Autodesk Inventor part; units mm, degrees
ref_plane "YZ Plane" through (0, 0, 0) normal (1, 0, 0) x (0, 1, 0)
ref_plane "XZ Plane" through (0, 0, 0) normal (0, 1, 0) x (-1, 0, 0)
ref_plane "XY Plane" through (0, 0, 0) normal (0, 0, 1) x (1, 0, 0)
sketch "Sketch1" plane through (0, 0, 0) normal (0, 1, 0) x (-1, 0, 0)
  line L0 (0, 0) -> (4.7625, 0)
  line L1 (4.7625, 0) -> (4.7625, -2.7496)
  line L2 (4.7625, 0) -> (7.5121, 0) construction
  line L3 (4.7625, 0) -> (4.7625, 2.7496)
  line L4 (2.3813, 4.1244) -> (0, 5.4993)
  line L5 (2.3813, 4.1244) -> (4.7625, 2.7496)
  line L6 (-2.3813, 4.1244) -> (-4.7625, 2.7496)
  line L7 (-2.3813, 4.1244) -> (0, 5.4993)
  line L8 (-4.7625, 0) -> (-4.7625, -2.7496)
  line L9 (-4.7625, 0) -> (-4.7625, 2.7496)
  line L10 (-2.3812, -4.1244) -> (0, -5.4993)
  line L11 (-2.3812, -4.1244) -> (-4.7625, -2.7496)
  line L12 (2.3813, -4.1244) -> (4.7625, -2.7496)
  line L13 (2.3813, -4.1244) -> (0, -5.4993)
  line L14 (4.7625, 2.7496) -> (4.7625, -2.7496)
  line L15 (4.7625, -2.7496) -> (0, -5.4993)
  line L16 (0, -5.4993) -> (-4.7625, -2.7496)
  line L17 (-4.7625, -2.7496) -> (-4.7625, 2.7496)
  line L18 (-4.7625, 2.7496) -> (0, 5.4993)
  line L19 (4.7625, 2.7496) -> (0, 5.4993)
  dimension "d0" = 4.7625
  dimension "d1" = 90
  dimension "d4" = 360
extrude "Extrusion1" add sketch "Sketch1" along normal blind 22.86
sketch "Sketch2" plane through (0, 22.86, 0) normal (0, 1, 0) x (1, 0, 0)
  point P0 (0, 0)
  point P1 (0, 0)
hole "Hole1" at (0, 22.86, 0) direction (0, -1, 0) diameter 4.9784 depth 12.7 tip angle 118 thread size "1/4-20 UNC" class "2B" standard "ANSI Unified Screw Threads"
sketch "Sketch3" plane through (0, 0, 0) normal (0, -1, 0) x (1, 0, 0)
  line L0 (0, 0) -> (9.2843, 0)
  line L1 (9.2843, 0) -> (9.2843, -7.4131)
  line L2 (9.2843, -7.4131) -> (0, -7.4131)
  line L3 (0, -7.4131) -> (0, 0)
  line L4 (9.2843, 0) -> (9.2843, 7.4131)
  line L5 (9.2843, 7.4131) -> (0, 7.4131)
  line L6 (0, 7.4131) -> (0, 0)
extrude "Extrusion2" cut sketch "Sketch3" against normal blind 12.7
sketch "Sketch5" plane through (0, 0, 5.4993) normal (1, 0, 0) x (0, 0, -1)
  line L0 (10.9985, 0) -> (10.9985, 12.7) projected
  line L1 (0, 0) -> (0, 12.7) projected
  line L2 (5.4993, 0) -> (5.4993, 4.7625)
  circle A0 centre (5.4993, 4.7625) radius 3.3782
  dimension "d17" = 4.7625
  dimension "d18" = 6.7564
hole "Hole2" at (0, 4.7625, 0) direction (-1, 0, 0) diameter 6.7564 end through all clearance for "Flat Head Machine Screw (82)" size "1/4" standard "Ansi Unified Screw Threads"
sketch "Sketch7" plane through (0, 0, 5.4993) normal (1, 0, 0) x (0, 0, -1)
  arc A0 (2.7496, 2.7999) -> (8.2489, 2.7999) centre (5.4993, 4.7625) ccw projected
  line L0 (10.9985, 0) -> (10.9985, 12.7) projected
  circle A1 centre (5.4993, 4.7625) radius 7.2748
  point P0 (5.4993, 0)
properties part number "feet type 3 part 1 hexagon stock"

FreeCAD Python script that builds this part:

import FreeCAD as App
import Part
import Sketcher
from FreeCAD import Vector
Q = App.Units.Quantity


def add_polygon(sketch, points):
    """Adds a closed chain of lines whose ends are joined by coincident constraints."""
    first, n = sketch.GeometryCount, len(points)
    for a, b in zip(points, points[1:] + points[:1]):
        sketch.addGeometry(Part.LineSegment(App.Vector(*a, 0), App.Vector(*b, 0)), False)
    for i in range(n):
        sketch.addConstraint(Sketcher.Constraint("Coincident", first + i, 2, first + (i + 1) % n, 1))

doc = App.newDocument("Part")
body = doc.addObject("PartDesign::Body", "Body")

# Sketch on XZ plane
sketch1 = body.newObject("Sketcher::SketchObject", "Sketch")
sketch1.AttachmentSupport = (doc.getObject("XZ_Plane"), [""])
sketch1.MapMode = "FlatFace"
add_polygon(sketch1, [(-4.8, -2.7), (-4.8, 2.7), (-2.4, 4.1), (0, 5.5), (2.4, 4.1), (4.8, 2.7), (4.8, -2.7), (2.4, -4.1), (0, -5.5), (-2.4, -4.1)])  # lines 0-9
sketch1.addConstraint([
    Sketcher.Constraint("Vertical", 0),
    Sketcher.Constraint("Vertical", 5),
    Sketcher.Constraint("Symmetric", 0, 2, 5, 2, -1, 1),
    Sketcher.Constraint("Symmetric", 1, 2, 6, 2, -1, 1),
    Sketcher.Constraint("Symmetric", 2, 2, 7, 2, -1, 1),
    Sketcher.Constraint("Symmetric", 3, 2, 8, 2, -1, 1),
    Sketcher.Constraint("Symmetric", 1, 2, 3, 2, -2),
    Sketcher.Constraint("PointOnObject", 2, 2, -2),
    Sketcher.Constraint("Parallel", 1, 2),
    Sketcher.Constraint("Parallel", 3, 4),
    Sketcher.Constraint("Parallel", 8, 9),
    Sketcher.Constraint("Equal", 1, 2),
    Sketcher.Constraint("DistanceX", 0, 2, -1, 1, Q("0.1875 in")),
    Sketcher.Constraint("Angle", 1, Q("30.0002 deg")),
    Sketcher.Constraint("DistanceY", 0, 1, 0, 2, Q("0.2165 in")),
])
pad1 = body.newObject("PartDesign::Pad", "Pad")
pad1.Profile = sketch1
pad1.Length = Q("0.9 in")
pad1.Reversed = True

# Sketch on XZ plane
sketch2 = body.newObject("Sketcher::SketchObject", "Sketch001")
sketch2.AttachmentSupport = (doc.getObject("XZ_Plane"), [""])
sketch2.MapMode = "FlatFace"
sketch2.AttachmentOffset = App.Placement(Vector(0, 0, -0.9 * 25.4), App.Rotation())
sketch2.addGeometry(Part.Circle(Vector(0, 0, 0), Vector(0, 0, 1), 2.5), False)
sketch2.addConstraint([
    Sketcher.Constraint("Coincident", 0, 3, -1, 1),
    Sketcher.Constraint("Diameter", 0, Q("0.196 in")),
])
doc.recompute()
hole = body.newObject("PartDesign::Hole", "Hole")
hole.Profile = sketch2
hole.ThreadType = "None"
hole.Diameter = Q("0.196 in")
hole.DepthType = "Dimension"
hole.Depth = Q("0.5 in")
hole.DrillPoint = "Angled"
hole.DrillPointAngle = 118
hole.Reversed = True

# Sketch on XZ plane
sketch3 = body.newObject("Sketcher::SketchObject", "Sketch002")
sketch3.AttachmentSupport = (doc.getObject("XZ_Plane"), [""])
sketch3.MapMode = "FlatFace"
add_polygon(sketch3, [(0, 7), (0, -7), (9, -7), (9, 7)])  # lines 0-3
sketch3.addConstraint([
    Sketcher.Constraint("Vertical", 0),
    Sketcher.Constraint("Horizontal", 1),
    Sketcher.Constraint("Vertical", 2),
    Sketcher.Constraint("Horizontal", 3),
    Sketcher.Constraint("Symmetric", 0, 2, 3, 2, -1, 1),
    Sketcher.Constraint("DistanceY", 0, 2, 0, 1, Q("0.5837 in")),
    Sketcher.Constraint("DistanceX", 1, 1, 1, 2, Q("9.2843 mm")),
])
pocket1 = body.newObject("PartDesign::Pocket", "Pocket")
pocket1.Profile = sketch3
pocket1.Length = Q("0.5 in")

# Sketch on YZ plane
sketch4 = body.newObject("Sketcher::SketchObject", "Sketch003")
sketch4.AttachmentSupport = (doc.getObject("YZ_Plane"), [""])
sketch4.MapMode = "FlatFace"
sketch4.addGeometry(Part.Circle(Vector(4.8, 0, 0), Vector(0, 0, 1), 3.4), False)
sketch4.addConstraint([
    Sketcher.Constraint("PointOnObject", 0, 3, -1),
    Sketcher.Constraint("Diameter", 0, Q("0.266 in")),
    Sketcher.Constraint("DistanceX", -1, 1, 0, 3, Q("0.1875 in")),
])
doc.recompute()
hole2 = body.newObject("PartDesign::Hole", "Hole001")
hole2.Profile = sketch4
hole2.ThreadType = "None"
hole2.Diameter = Q("0.266 in")
hole2.DepthType = "ThroughAll"

doc.recompute()
